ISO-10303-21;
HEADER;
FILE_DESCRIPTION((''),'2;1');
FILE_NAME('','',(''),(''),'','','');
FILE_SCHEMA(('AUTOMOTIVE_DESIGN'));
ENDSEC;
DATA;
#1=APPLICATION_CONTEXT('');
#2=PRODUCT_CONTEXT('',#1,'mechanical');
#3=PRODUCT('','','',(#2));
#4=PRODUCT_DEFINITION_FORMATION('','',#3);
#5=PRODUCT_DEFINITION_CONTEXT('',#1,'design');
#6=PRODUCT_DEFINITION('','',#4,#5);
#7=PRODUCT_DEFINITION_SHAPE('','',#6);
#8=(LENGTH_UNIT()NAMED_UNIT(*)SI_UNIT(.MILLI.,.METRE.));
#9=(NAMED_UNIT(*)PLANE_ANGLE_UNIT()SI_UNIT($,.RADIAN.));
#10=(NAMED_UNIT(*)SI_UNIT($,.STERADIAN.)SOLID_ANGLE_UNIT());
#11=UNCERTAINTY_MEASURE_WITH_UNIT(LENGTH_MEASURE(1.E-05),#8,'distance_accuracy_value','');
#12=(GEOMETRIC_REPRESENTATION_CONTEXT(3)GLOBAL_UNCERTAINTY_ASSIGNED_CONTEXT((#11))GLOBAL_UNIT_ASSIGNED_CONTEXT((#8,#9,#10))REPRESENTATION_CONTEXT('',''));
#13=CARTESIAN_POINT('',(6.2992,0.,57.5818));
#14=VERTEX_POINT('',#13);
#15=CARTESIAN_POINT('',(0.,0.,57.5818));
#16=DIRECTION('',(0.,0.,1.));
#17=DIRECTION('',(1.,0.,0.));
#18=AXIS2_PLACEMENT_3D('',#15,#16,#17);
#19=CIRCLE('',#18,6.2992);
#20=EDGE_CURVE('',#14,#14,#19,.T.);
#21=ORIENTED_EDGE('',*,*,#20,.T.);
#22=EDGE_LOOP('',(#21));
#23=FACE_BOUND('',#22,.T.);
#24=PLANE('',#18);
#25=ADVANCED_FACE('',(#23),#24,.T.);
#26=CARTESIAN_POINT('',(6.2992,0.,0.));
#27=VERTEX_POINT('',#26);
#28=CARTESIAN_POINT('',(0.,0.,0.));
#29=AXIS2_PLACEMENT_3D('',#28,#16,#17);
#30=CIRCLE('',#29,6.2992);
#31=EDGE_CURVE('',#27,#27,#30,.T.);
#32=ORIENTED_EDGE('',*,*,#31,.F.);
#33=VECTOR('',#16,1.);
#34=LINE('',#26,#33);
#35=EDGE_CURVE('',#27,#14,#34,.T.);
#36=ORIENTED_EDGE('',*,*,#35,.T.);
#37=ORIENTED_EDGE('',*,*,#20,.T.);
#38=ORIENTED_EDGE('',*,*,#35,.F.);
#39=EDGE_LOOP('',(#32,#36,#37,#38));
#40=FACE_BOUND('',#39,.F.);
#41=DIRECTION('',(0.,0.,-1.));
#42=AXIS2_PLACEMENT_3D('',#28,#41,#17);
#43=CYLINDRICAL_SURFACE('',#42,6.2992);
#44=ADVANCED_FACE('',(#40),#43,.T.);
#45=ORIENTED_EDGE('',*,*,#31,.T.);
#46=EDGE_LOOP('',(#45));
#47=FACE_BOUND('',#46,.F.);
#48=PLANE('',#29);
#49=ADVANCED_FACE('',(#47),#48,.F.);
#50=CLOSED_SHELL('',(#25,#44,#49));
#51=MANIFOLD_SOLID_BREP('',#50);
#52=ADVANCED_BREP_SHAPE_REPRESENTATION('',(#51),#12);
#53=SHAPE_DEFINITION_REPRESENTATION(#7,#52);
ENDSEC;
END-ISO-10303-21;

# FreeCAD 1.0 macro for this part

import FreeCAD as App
import Part
import Sketcher
Q = App.Units.Quantity

doc = App.newDocument("Part")
body = doc.addObject("PartDesign::Body", "Body")

# Sketch on XY plane
sketch1 = body.newObject("Sketcher::SketchObject", "Sketch")
sketch1.AttachmentSupport = (doc.getObject("XY_Plane"), [""])
sketch1.MapMode = "FlatFace"
sketch1.addGeometry(Part.Circle(App.Vector(0, 0, 0), App.Vector(0, 0, 1), 6), False)
sketch1.addConstraint([
    Sketcher.Constraint("Coincident", 0, 3, -1, 1),
    Sketcher.Constraint("Diameter", 0, Q("0.496 in")),
])
pad1 = body.newObject("PartDesign::Pad", "Pad")
pad1.Profile = sketch1
pad1.Length = Q("2.267 in")

doc.recompute()
